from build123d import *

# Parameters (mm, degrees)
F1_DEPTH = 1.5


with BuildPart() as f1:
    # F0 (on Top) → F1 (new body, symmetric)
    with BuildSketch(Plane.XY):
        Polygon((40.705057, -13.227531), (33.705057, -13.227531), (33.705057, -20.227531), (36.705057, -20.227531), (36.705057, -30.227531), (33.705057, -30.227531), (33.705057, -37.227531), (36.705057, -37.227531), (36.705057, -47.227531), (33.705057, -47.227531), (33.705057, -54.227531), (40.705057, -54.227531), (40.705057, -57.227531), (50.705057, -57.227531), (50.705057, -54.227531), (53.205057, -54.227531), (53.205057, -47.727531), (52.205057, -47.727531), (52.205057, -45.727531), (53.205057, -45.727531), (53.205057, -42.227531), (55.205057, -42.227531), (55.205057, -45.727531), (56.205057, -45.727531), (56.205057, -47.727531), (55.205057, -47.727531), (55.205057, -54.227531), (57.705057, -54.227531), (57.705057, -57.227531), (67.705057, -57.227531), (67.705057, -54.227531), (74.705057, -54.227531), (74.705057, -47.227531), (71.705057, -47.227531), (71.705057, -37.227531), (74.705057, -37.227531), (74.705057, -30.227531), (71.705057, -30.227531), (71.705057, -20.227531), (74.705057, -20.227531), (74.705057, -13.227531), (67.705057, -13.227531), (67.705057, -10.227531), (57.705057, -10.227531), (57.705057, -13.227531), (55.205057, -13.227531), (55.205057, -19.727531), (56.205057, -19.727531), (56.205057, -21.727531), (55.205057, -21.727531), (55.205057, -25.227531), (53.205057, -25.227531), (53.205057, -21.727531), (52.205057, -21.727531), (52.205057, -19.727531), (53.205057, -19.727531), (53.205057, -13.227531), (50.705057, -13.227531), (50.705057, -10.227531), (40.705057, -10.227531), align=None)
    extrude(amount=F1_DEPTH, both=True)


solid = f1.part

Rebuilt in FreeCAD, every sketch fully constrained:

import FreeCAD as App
import Part
import Sketcher

V = App.Vector
Q = App.Units.Quantity


def add_polygon(sketch, points):
    """Adds a closed chain of lines whose ends are joined by coincident constraints."""
    first, n = sketch.GeometryCount, len(points)
    for a, b in zip(points, points[1:] + points[:1]):
        sketch.addGeometry(Part.LineSegment(App.Vector(*a, 0), App.Vector(*b, 0)), False)
    for i in range(n):
        sketch.addConstraint(Sketcher.Constraint("Coincident", first + i, 2, first + (i + 1) % n, 1))

doc = App.newDocument("Part")
body = doc.addObject("PartDesign::Body", "Body")

# Sketch on XY plane
sketch1 = body.newObject("Sketcher::SketchObject", "Sketch")
sketch1.AttachmentSupport = (doc.getObject("XY_Plane"), [""])
sketch1.MapMode = "FlatFace"
add_polygon(sketch1, [(40.7, -13.2), (33.7, -13.2), (33.7, -20.2), (36.7, -20.2), (36.7, -30.2), (33.7, -30.2), (33.7, -37.2), (36.7, -37.2), (36.7, -47.2), (33.7, -47.2), (33.7, -54.2), (40.7, -54.2), (40.7, -57.2), (50.7, -57.2), (50.7, -54.2), (53.2, -54.2), (53.2, -47.7), (52.2, -47.7), (52.2, -45.7), (53.2, -45.7), (53.2, -42.2), (55.2, -42.2), (55.2, -45.7), (56.2, -45.7), (56.2, -47.7), (55.2, -47.7), (55.2, -54.2), (57.7, -54.2), (57.7, -57.2), (67.7, -57.2), (67.7, -54.2), (74.7, -54.2), (74.7, -47.2), (71.7, -47.2), (71.7, -37.2), (74.7, -37.2), (74.7, -30.2), (71.7, -30.2), (71.7, -20.2), (74.7, -20.2), (74.7, -13.2), (67.7, -13.2), (67.7, -10.2), (57.7, -10.2), (57.7, -13.2), (55.2, -13.2), (55.2, -19.7), (56.2, -19.7), (56.2, -21.7), (55.2, -21.7), (55.2, -25.2), (53.2, -25.2), (53.2, -21.7), (52.2, -21.7), (52.2, -19.7), (53.2, -19.7), (53.2, -13.2), (50.7, -13.2), (50.7, -10.2), (40.7, -10.2)])  # lines 0-59
sketch1.addConstraint([
    Sketcher.Constraint("Horizontal", 0),
    Sketcher.Constraint("Vertical", 1),
    Sketcher.Constraint("Horizontal", 2),
    Sketcher.Constraint("Vertical", 3),
    Sketcher.Constraint("Horizontal", 4),
    Sketcher.Constraint("Vertical", 5),
    Sketcher.Constraint("Horizontal", 6),
    Sketcher.Constraint("Vertical", 7),
    Sketcher.Constraint("Horizontal", 8),
    Sketcher.Constraint("Vertical", 9),
    Sketcher.Constraint("Horizontal", 10),
    Sketcher.Constraint("Vertical", 11),
    Sketcher.Constraint("Horizontal", 12),
    Sketcher.Constraint("Vertical", 13),
    Sketcher.Constraint("Horizontal", 14),
    Sketcher.Constraint("Vertical", 15),
    Sketcher.Constraint("Horizontal", 16),
    Sketcher.Constraint("Vertical", 17),
    Sketcher.Constraint("Horizontal", 18),
    Sketcher.Constraint("Vertical", 19),
    Sketcher.Constraint("Horizontal", 20),
    Sketcher.Constraint("Vertical", 21),
    Sketcher.Constraint("Horizontal", 22),
    Sketcher.Constraint("Vertical", 23),
    Sketcher.Constraint("Horizontal", 24),
    Sketcher.Constraint("Vertical", 25),
    Sketcher.Constraint("Horizontal", 26),
    Sketcher.Constraint("Vertical", 27),
    Sketcher.Constraint("Horizontal", 28),
    Sketcher.Constraint("Vertical", 29),
    Sketcher.Constraint("Horizontal", 30),
    Sketcher.Constraint("Vertical", 31),
    Sketcher.Constraint("Horizontal", 32),
    Sketcher.Constraint("Vertical", 33),
    Sketcher.Constraint("Horizontal", 34),
    Sketcher.Constraint("Vertical", 35),
    Sketcher.Constraint("Horizontal", 36),
    Sketcher.Constraint("Vertical", 37),
    Sketcher.Constraint("Horizontal", 38),
    Sketcher.Constraint("Vertical", 39),
    Sketcher.Constraint("Horizontal", 40),
    Sketcher.Constraint("Vertical", 41),
    Sketcher.Constraint("Horizontal", 42),
    Sketcher.Constraint("Vertical", 43),
    Sketcher.Constraint("Horizontal", 44),
    Sketcher.Constraint("Vertical", 45),
    Sketcher.Constraint("Horizontal", 46),
    Sketcher.Constraint("Vertical", 47),
    Sketcher.Constraint("Horizontal", 48),
    Sketcher.Constraint("Vertical", 49),
    Sketcher.Constraint("Horizontal", 50),
    Sketcher.Constraint("Vertical", 51),
    Sketcher.Constraint("Horizontal", 52),
    Sketcher.Constraint("Vertical", 53),
    Sketcher.Constraint("Horizontal", 54),
    Sketcher.Constraint("Vertical", 55),
    Sketcher.Constraint("Horizontal", 56),
    Sketcher.Constraint("Vertical", 57),
    Sketcher.Constraint("Horizontal", 58),
    Sketcher.Constraint("Vertical", 59),
    Sketcher.Constraint("Horizontal", 10, 2, 13, 2),
    Sketcher.Constraint("Horizontal", 18, 2, 21, 2),
    Sketcher.Constraint("Horizontal", 16, 2, 23, 2),
    Sketcher.Constraint("Horizontal", 14, 2, 25, 2),
    Sketcher.Constraint("Horizontal", 12, 2, 27, 2),
    Sketcher.Constraint("Horizontal", 26, 2, 29, 2),
    Sketcher.Constraint("Horizontal", 8, 2, 31, 2),
    Sketcher.Constraint("Horizontal", 6, 2, 33, 2),
    Sketcher.Constraint("Horizontal", 4, 2, 35, 2),
    Sketcher.Constraint("Horizontal", 2, 2, 37, 2),
    Sketcher.Constraint("Horizontal", 0, 2, 39, 2),
    Sketcher.Constraint("Horizontal", 40, 2, 43, 2),
    Sketcher.Constraint("Horizontal", 48, 2, 51, 2),
    Sketcher.Constraint("Horizontal", 46, 2, 53, 2),
    Sketcher.Constraint("Horizontal", 44, 2, 55, 2),
    Sketcher.Constraint("Horizontal", 42, 2, 57, 2),
    Sketcher.Constraint("Vertical", 1, 2, 4, 2),
    Sketcher.Constraint("Vertical", 3, 2, 6, 2),
    Sketcher.Constraint("Vertical", 5, 2, 8, 2),
    Sketcher.Constraint("Vertical", 15, 2, 18, 2),
    Sketcher.Constraint("Vertical", 21, 2, 24, 2),
    Sketcher.Constraint("Vertical", 31, 2, 34, 2),
    Sketcher.Constraint("Vertical", 33, 2, 36, 2),
    Sketcher.Constraint("Vertical", 35, 2, 38, 2),
    Sketcher.Constraint("Vertical", 29, 2, 40, 2),
    Sketcher.Constraint("Vertical", 27, 2, 42, 2),
    Sketcher.Constraint("Vertical", 25, 2, 44, 2),
    Sketcher.Constraint("Vertical", 23, 2, 46, 2),
    Sketcher.Constraint("Vertical", 45, 2, 48, 2),
    Sketcher.Constraint("Vertical", 19, 2, 50, 2),
    Sketcher.Constraint("Vertical", 17, 2, 52, 2),
    Sketcher.Constraint("Vertical", 51, 2, 54, 2),
    Sketcher.Constraint("Vertical", 13, 2, 56, 2),
    Sketcher.Constraint("Vertical", 11, 2, 58, 2),
    Sketcher.Constraint("Equal", 18, 22),
    Sketcher.Constraint("Equal", 14, 26),
    Sketcher.Constraint("Equal", 12, 28),
    Sketcher.Constraint("Equal", 10, 30),
    Sketcher.Constraint("Equal", 8, 32),
    Sketcher.Constraint("Equal", 40, 1),
    Sketcher.Constraint("Equal", 58, 3),
    Sketcher.Constraint("Equal", 1, 5),
    Sketcher.Constraint("Equal", 3, 7),
    Sketcher.Constraint("Equal", 5, 9),
    Sketcher.Constraint("Equal", 38, 11),
    Sketcher.Constraint("Equal", 50, 17),
    Sketcher.Constraint("Equal", 29, 41),
    Sketcher.Constraint("Equal", 25, 45),
    Sketcher.Constraint("Equal", 23, 47),
    Sketcher.Constraint("Equal", 21, 49),
    Sketcher.Constraint("DistanceX", 0, 2, 0, 1, Q("7 mm")),
    Sketcher.Constraint("DistanceX", 2, 1, 2, 2, Q("3 mm")),
    Sketcher.Constraint("DistanceX", 12, 1, 12, 2, Q("10 mm")),
    Sketcher.Constraint("DistanceX", 16, 2, 16, 1, Q("1 mm")),
    Sketcher.Constraint("DistanceX", 20, 1, 20, 2, Q("2 mm")),
    Sketcher.Constraint("DistanceX", 14, 1, 14, 2, Q("2.5 mm")),
    Sketcher.Constraint("DistanceY", 15, 1, 15, 2, Q("6.5 mm")),
    Sketcher.Constraint("DistanceY", 19, 1, 19, 2, Q("3.5 mm")),
    Sketcher.Constraint("DistanceY", 0, 2, -1, 1, Q("13.227531 mm")),
    Sketcher.Constraint("DistanceX", -1, 1, 0, 2, Q("33.705057 mm")),
])
pad1 = body.newObject("PartDesign::Pad", "Pad")
pad1.Profile = sketch1
pad1.Length = 3
pad1.Midplane = True

doc.recompute()
